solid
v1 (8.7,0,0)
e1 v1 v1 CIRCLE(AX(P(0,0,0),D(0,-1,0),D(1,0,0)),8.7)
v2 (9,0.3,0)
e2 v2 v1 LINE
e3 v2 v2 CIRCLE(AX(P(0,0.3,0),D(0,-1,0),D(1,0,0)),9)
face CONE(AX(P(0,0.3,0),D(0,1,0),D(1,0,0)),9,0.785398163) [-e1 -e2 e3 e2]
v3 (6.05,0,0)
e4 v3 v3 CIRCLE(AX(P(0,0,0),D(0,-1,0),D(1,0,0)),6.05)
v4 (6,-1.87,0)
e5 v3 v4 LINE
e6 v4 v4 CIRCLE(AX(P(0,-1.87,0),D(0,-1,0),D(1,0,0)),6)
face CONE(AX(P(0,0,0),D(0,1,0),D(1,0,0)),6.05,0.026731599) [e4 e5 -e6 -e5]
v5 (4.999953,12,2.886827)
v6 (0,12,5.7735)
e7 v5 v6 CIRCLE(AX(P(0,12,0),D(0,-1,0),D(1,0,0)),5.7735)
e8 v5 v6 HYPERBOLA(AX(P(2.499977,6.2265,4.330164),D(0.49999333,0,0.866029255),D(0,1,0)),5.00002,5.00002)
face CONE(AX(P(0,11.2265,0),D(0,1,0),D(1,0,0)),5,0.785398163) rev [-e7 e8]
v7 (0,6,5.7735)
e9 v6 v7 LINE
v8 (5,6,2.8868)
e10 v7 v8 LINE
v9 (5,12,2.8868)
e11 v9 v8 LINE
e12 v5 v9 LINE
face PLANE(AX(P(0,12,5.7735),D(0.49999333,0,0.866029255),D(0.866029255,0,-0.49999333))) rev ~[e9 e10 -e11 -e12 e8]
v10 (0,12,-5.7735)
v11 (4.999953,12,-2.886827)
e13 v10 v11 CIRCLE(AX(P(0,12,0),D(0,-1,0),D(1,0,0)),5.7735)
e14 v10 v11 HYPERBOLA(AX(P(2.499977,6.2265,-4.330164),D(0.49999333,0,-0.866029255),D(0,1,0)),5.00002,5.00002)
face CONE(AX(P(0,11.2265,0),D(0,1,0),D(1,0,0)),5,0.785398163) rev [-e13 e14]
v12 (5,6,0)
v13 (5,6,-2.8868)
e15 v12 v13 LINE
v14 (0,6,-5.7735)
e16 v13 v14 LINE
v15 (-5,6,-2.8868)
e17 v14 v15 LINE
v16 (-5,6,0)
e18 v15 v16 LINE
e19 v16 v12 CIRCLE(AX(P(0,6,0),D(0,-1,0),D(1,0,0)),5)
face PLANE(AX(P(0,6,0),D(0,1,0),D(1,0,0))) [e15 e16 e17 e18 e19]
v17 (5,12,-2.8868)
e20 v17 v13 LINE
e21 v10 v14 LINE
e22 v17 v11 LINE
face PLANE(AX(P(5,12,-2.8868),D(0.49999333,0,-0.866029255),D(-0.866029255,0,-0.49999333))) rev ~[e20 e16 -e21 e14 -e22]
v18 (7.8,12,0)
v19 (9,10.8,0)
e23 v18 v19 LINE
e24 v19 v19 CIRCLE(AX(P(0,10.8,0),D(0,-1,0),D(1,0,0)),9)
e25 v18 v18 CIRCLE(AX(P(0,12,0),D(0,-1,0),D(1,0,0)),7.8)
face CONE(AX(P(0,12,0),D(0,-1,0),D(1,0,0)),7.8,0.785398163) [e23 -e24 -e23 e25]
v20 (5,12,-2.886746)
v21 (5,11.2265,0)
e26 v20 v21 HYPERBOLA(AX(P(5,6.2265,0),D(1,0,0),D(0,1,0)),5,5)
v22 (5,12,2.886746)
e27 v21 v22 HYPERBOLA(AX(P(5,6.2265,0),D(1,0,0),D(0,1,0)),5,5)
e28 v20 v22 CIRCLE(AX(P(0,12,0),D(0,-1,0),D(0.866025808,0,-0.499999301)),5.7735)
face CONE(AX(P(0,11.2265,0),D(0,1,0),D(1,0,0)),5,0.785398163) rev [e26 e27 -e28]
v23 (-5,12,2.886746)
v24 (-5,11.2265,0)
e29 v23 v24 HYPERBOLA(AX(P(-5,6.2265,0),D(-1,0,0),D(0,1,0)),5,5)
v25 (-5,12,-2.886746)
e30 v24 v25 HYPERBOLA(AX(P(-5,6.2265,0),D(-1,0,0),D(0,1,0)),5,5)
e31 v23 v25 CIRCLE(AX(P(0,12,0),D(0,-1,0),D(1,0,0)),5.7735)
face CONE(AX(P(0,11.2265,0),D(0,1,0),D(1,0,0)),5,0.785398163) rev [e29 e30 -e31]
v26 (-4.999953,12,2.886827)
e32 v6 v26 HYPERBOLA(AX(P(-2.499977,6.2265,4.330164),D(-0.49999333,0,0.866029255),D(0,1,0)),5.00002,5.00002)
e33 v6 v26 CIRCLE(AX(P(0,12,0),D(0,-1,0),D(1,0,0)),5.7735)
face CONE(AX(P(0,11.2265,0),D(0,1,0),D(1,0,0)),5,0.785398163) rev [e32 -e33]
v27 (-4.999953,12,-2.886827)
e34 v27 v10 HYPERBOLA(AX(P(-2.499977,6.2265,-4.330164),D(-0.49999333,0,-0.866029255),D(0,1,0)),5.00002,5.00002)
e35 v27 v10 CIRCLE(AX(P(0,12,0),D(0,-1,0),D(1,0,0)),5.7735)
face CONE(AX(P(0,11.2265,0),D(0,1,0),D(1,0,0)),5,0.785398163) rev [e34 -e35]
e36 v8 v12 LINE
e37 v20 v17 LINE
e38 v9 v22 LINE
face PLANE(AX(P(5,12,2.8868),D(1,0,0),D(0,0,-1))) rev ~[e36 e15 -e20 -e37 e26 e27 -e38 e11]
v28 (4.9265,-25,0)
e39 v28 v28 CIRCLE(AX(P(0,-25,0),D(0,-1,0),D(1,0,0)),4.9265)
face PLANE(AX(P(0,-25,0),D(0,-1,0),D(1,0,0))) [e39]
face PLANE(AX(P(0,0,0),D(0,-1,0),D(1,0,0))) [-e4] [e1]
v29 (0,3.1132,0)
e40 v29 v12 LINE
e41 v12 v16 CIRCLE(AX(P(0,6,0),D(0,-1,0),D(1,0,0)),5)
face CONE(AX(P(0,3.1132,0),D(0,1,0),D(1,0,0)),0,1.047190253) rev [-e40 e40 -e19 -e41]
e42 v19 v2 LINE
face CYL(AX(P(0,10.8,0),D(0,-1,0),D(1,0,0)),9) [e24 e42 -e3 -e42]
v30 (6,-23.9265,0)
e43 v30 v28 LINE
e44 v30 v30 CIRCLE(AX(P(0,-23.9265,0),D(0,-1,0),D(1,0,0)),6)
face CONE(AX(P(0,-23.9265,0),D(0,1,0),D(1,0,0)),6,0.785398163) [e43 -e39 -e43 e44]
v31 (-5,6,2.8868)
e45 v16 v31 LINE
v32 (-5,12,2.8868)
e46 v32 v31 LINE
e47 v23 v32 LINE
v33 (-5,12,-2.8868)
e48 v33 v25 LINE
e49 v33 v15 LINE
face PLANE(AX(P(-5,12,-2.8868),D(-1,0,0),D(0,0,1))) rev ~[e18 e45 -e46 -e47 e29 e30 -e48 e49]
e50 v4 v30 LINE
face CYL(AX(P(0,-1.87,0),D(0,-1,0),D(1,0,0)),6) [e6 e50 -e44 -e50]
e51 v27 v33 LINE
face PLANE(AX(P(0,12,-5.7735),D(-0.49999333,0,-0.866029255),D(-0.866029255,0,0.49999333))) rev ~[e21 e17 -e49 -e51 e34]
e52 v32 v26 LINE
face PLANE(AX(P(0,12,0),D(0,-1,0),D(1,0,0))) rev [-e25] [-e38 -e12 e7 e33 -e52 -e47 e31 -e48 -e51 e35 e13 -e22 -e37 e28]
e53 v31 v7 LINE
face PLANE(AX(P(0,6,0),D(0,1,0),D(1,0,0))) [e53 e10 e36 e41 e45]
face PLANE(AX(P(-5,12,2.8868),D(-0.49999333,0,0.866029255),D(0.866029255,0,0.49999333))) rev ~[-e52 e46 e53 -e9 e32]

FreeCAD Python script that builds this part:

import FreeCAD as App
import Part
import Sketcher
Q = App.Units.Quantity


def add_polygon(sketch, points):
    """Adds a closed chain of lines whose ends are joined by coincident constraints."""
    first, n = sketch.GeometryCount, len(points)
    for a, b in zip(points, points[1:] + points[:1]):
        sketch.addGeometry(Part.LineSegment(App.Vector(*a, 0), App.Vector(*b, 0)), False)
    for i in range(n):
        sketch.addConstraint(Sketcher.Constraint("Coincident", first + i, 2, first + (i + 1) % n, 1))

doc = App.newDocument("Part")
body = doc.addObject("PartDesign::Body", "Body")

# Sketch on XY plane
sketch1 = body.newObject("Sketcher::SketchObject", "Sketch")
sketch1.AttachmentSupport = (doc.getObject("XY_Plane"), [""])
sketch1.MapMode = "FlatFace"
add_polygon(sketch1, [(0, 3.1132), (0, -25), (4.9265, -25), (6, -23.9265), (6, -1.87), (6.05, 0), (8.7, 0), (9, 0.3), (9, 10.8), (7.8, 12), (5.7735, 12), (5, 11.2265), (5, 6)])  # lines 0-12
sketch1.addConstraint(Sketcher.Constraint("Vertical", 0))
sketch1.addConstraint(Sketcher.Constraint("Horizontal", 1))
sketch1.addConstraint(Sketcher.Constraint("Vertical", 3))
sketch1.addConstraint(Sketcher.Constraint("Horizontal", 5))
sketch1.addConstraint(Sketcher.Constraint("Vertical", 7))
sketch1.addConstraint(Sketcher.Constraint("Horizontal", 9))
sketch1.addConstraint(Sketcher.Constraint("Vertical", 11))
sketch1.addConstraint(Sketcher.Constraint("PointOnObject", 0, 2, -2))
sketch1.addConstraint(Sketcher.Constraint("PointOnObject", 4, 2, -1))
sketch1.addConstraint(Sketcher.Constraint("Parallel", 2, 6))
sketch1.addConstraint(Sketcher.Constraint("Perpendicular", 6, 8))
sketch1.addConstraint(Sketcher.Constraint("Perpendicular", 8, 10))
sketch1.addConstraint(Sketcher.Constraint("Angle", 2, Q("45 deg")))
sketch1.addConstraint(Sketcher.Constraint("Angle", 12, Q("-149.9996 deg")))
sketch1.addConstraint(Sketcher.Constraint("DistanceY", 7, 1, 7, 2, Q("10.5 mm")))
sketch1.addConstraint(Sketcher.Constraint("DistanceY", 0, 2, -1, 1, Q("25 mm")))
sketch1.addConstraint(Sketcher.Constraint("DistanceX", -1, 1, 2, 2, Q("6 mm")))
sketch1.addConstraint(Sketcher.Constraint("DistanceX", -1, 1, 6, 2, Q("9 mm")))
sketch1.addConstraint(Sketcher.Constraint("DistanceY", -1, 1, 8, 2, Q("12 mm")))
sketch1.addConstraint(Sketcher.Constraint("DistanceX", -1, 1, 10, 2, Q("5 mm")))
sketch1.addConstraint(Sketcher.Constraint("DistanceY", -1, 1, 11, 2, Q("6 mm")))
sketch1.addConstraint(Sketcher.Constraint("DistanceX", 5, 1, 5, 2, Q("2.65 mm")))
sketch1.addConstraint(Sketcher.Constraint("DistanceX", -1, 1, 5, 2, Q("8.7 mm")))
sketch1.addConstraint(Sketcher.Constraint("DistanceY", 3, 2, -1, 1, Q("1.87 mm")))
sketch1.addConstraint(Sketcher.Constraint("Distance", 10, Q("1.094 mm")))
sketch1.addConstraint(Sketcher.Constraint("DistanceX", 1, 1, 1, 2, Q("4.9265 mm")))
revolution = body.newObject("PartDesign::Revolution", "Revolution")
revolution.Profile = sketch1
revolution.ReferenceAxis = (sketch1, ["V_Axis"])
revolution.Angle = 360

# Sketch on XZ plane
sketch2 = body.newObject("Sketcher::SketchObject", "Sketch001")
sketch2.AttachmentSupport = (doc.getObject("XZ_Plane"), [""])
sketch2.MapMode = "FlatFace"
sketch2.AttachmentOffset = App.Placement(App.Vector(0, 0, -12), App.Rotation())
add_polygon(sketch2, [(-5, -2.8868), (-5, 2.8868), (0, 5.7735), (5, 2.8868), (5, -2.8868), (0, -5.7735)])  # lines 0-5
sketch2.addConstraint(Sketcher.Constraint("Vertical", 0))
sketch2.addConstraint(Sketcher.Constraint("Vertical", 3))
sketch2.addConstraint(Sketcher.Constraint("Symmetric", 0, 2, 3, 2, -1, 1))
sketch2.addConstraint(Sketcher.Constraint("Symmetric", 1, 2, 4, 2, -1, 1))
sketch2.addConstraint(Sketcher.Constraint("PointOnObject", 1, 2, -2))
sketch2.addConstraint(Sketcher.Constraint("Parallel", 2, 5))
sketch2.addConstraint(Sketcher.Constraint("Horizontal", 0, 2, 2, 2))
sketch2.addConstraint(Sketcher.Constraint("Angle", 1, Q("29.9996 deg")))
sketch2.addConstraint(Sketcher.Constraint("DistanceX", 0, 2, -1, 1, Q("5 mm")))
sketch2.addConstraint(Sketcher.Constraint("DistanceY", 0, 1, 0, 2, Q("5.7736 mm")))
pocket1 = body.newObject("PartDesign::Pocket", "Pocket")
pocket1.Profile = sketch2
pocket1.Length = 6
pocket1.Reversed = True

doc.recompute()
